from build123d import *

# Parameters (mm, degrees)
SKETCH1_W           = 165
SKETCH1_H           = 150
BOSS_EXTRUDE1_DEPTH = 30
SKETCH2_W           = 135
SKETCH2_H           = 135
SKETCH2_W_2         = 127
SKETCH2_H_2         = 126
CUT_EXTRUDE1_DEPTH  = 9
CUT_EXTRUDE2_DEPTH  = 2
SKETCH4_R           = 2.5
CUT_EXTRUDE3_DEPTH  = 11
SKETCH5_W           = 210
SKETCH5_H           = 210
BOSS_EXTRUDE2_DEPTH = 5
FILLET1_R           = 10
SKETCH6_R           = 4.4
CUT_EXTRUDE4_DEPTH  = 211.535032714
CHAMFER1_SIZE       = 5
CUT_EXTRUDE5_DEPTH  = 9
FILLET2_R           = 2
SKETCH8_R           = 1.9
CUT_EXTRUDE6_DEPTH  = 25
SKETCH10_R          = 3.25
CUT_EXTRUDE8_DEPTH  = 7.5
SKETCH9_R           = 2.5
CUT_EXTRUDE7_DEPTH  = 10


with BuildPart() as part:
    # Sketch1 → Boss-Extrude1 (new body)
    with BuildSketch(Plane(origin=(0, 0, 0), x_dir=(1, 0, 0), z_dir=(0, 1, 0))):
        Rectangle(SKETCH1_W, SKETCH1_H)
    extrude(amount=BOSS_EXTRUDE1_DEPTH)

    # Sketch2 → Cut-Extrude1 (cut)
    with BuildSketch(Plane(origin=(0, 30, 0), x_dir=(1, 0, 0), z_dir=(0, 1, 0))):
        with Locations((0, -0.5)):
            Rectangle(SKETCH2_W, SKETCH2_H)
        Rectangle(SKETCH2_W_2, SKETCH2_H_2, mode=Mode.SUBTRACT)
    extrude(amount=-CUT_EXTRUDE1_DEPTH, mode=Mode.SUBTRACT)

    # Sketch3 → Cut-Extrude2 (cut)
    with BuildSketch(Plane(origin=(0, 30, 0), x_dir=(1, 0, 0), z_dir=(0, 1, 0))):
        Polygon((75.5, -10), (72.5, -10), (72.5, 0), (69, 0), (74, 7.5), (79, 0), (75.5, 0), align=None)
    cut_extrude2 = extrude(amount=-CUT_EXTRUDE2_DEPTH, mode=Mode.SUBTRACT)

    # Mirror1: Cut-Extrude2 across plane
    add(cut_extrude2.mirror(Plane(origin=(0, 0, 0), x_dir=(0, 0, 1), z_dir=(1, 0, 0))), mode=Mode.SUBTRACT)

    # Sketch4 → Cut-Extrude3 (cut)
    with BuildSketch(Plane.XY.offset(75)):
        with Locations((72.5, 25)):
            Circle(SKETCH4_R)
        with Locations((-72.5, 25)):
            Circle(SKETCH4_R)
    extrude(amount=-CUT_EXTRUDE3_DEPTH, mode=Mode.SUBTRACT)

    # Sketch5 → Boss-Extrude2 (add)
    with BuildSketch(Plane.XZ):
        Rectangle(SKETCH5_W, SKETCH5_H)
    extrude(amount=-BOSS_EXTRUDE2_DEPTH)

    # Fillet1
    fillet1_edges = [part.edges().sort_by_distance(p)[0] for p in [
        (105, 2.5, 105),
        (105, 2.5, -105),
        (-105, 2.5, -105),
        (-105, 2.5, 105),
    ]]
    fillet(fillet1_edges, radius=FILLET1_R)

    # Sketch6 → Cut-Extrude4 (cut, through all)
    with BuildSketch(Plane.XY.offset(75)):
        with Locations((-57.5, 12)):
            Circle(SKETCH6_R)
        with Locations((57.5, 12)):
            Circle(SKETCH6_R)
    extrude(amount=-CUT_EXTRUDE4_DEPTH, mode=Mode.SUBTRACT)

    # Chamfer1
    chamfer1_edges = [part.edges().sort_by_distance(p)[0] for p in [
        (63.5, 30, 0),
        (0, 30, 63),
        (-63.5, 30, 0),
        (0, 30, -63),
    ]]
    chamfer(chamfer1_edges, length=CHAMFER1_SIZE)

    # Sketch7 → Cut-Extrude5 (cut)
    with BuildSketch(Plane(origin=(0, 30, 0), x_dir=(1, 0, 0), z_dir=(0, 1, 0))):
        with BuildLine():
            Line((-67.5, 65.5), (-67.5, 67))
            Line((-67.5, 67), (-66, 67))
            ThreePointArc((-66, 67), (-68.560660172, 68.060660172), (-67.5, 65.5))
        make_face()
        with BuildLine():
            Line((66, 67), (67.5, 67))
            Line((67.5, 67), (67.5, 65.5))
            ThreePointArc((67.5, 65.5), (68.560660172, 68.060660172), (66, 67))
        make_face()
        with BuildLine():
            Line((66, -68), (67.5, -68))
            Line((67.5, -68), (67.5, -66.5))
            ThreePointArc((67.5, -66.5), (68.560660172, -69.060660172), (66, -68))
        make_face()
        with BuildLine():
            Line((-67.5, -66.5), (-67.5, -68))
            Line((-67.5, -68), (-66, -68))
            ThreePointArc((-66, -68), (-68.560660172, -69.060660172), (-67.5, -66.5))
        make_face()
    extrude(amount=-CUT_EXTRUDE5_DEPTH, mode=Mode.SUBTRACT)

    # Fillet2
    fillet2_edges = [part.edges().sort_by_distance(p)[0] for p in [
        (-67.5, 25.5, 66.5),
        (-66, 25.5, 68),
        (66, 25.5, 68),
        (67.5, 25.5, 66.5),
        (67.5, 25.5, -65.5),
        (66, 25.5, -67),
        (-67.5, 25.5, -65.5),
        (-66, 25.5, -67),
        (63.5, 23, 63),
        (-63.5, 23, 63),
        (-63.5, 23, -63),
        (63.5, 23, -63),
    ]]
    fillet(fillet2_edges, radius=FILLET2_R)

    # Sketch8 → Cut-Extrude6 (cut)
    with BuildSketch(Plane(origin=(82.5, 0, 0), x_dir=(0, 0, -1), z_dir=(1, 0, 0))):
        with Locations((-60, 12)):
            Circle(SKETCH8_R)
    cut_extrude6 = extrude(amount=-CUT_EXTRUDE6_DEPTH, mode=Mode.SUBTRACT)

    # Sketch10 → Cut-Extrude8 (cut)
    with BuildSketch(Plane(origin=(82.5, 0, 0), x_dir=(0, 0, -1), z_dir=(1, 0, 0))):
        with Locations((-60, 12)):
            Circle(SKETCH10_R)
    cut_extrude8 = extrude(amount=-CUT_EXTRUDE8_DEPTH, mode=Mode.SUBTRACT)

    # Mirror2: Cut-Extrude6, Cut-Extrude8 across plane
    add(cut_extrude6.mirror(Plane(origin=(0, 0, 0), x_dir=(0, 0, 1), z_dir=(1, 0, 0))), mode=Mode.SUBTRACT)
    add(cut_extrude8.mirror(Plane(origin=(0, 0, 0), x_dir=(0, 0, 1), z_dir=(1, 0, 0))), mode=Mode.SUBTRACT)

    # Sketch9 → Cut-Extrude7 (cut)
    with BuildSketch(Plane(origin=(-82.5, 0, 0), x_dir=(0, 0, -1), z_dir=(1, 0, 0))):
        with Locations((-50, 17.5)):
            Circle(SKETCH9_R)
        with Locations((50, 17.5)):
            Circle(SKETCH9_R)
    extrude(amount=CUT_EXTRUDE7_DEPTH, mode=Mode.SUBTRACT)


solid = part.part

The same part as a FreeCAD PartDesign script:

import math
import FreeCAD as App
import Part
import Sketcher


def edges_at(feature, points):
    """Names of the edges that pass closest to the given points."""
    edges = feature.Shape.Edges
    near = lambda p: min(range(len(edges)), key=lambda i: edges[i].distToShape(Part.Vertex(*p))[0])
    return sorted({f"Edge{near(p) + 1}" for p in points})


def add_polygon(sketch, points):
    """Adds a closed chain of lines whose ends are joined by coincident constraints."""
    first, n = sketch.GeometryCount, len(points)
    for a, b in zip(points, points[1:] + points[:1]):
        sketch.addGeometry(Part.LineSegment(App.Vector(*a, 0), App.Vector(*b, 0)), False)
    for i in range(n):
        sketch.addConstraint(Sketcher.Constraint("Coincident", first + i, 2, first + (i + 1) % n, 1))

doc = App.newDocument("Part")
body = doc.addObject("PartDesign::Body", "Body")

sketch1 = doc.addObject("Sketcher::SketchObject", "Sketch")
body.addObject(sketch1)
sketch1.AttachmentSupport = (doc.XZ_Plane, [""])
sketch1.MapMode = "FlatFace"
add_polygon(sketch1, [(-82.5, -75), (-82.5, 75), (82.5, 75), (82.5, -75)])
sketch1.addConstraint([
    Sketcher.Constraint("Vertical", 0),
    Sketcher.Constraint("Horizontal", 1),
    Sketcher.Constraint("Vertical", 2),
    Sketcher.Constraint("Horizontal", 3),
    Sketcher.Constraint("Symmetric", 0, 2, 2, 2, -1, 1),
    Sketcher.Constraint("DistanceX", 1, 1, 1, 2, 165.0),
    Sketcher.Constraint("DistanceY", 0, 1, 0, 2, 150.0),
])
pad1 = doc.addObject("PartDesign::Pad", "Pad")
body.addObject(pad1)
pad1.Profile = sketch1
pad1.Length = 30
pad1.Reversed = True

sketch2 = doc.addObject("Sketcher::SketchObject", "Sketch001")
body.addObject(sketch2)
sketch2.AttachmentSupport = (doc.XZ_Plane, [""])
sketch2.MapMode = "FlatFace"
sketch2.AttachmentOffset = App.Placement(App.Vector(0, 0, -30), App.Rotation())
add_polygon(sketch2, [(-67.5, -67), (-67.5, 68), (67.5, 68), (67.5, -67)])
add_polygon(sketch2, [(63.5, 63), (-63.5, 63), (-63.5, -63), (63.5, -63)])
sketch2.addConstraint([
    Sketcher.Constraint("Vertical", 0),
    Sketcher.Constraint("Horizontal", 1),
    Sketcher.Constraint("Vertical", 2),
    Sketcher.Constraint("Horizontal", 3),
    Sketcher.Constraint("Horizontal", 4),
    Sketcher.Constraint("Vertical", 5),
    Sketcher.Constraint("Horizontal", 6),
    Sketcher.Constraint("Vertical", 7),
    Sketcher.Constraint("Symmetric", 4, 2, 6, 2, -1, 1),
    Sketcher.Constraint("Equal", 3, 0),
    Sketcher.Constraint("DistanceX", 1, 1, 1, 2, 135.0),
    Sketcher.Constraint("DistanceX", 4, 2, 4, 1, 127.0),
    Sketcher.Constraint("DistanceY", 5, 2, 5, 1, 126.0),
    Sketcher.Constraint("DistanceY", -1, 1, 0, 2, 68.0),
    Sketcher.Constraint("DistanceX", 0, 2, 4, 2, 4.0),
])
pocket1 = doc.addObject("PartDesign::Pocket", "Pocket")
body.addObject(pocket1)
pocket1.Profile = sketch2
pocket1.Length = 9
pocket1.Reversed = True

sketch3 = doc.addObject("Sketcher::SketchObject", "Sketch002")
body.addObject(sketch3)
sketch3.AttachmentSupport = (doc.XZ_Plane, [""])
sketch3.MapMode = "FlatFace"
sketch3.AttachmentOffset = App.Placement(App.Vector(0, 0, -30), App.Rotation())
add_polygon(sketch3, [(72.5, 10), (75.5, 10), (75.5, 0), (79, 0), (74, -7.5), (69, 0), (72.5, 0)])
sketch3.addConstraint([
    Sketcher.Constraint("Horizontal", 0),
    Sketcher.Constraint("Vertical", 1),
    Sketcher.Constraint("Horizontal", 2),
    Sketcher.Constraint("Horizontal", 5),
    Sketcher.Constraint("Vertical", 6),
    Sketcher.Constraint("PointOnObject", 1, 2, -1),
    Sketcher.Constraint("PointOnObject", 4, 2, -1),
    Sketcher.Constraint("Equal", 2, 5),
    Sketcher.Constraint("Equal", 3, 4),
    Sketcher.Constraint("DistanceX", 0, 1, 0, 2, 3.0),
    Sketcher.Constraint("DistanceY", 1, 2, 1, 1, 10.0),
    Sketcher.Constraint("DistanceX", 2, 1, 2, 2, 3.5),
    Sketcher.Constraint("DistanceX", -1, 1, 2, 2, 79.0),
    Sketcher.Constraint("DistanceY", 3, 2, -1, 1, 7.5),
])
pocket2 = doc.addObject("PartDesign::Pocket", "Pocket001")
body.addObject(pocket2)
pocket2.Profile = sketch3
pocket2.Length = 2
pocket2.Reversed = True
doc.recompute()

mirrored = doc.addObject("PartDesign::Mirrored", "Mirrored")
body.addObject(mirrored)
mirrored.Originals = [pocket2]
mirrored.MirrorPlane = (doc.YZ_Plane, [""])
body.Tip = mirrored

sketch4 = doc.addObject("Sketcher::SketchObject", "Sketch003")
body.addObject(sketch4)
sketch4.AttachmentSupport = (doc.XY_Plane, [""])
sketch4.MapMode = "FlatFace"
sketch4.AttachmentOffset = App.Placement(App.Vector(0, 0, 75), App.Rotation())
sketch4.addGeometry([
    Part.Circle(App.Vector(72.5, 25, 0), App.Vector(0, 0, 1), 2.5),
    Part.Circle(App.Vector(-72.5, 25, 0), App.Vector(0, 0, 1), 2.5),
], False)
sketch4.addConstraint([
    Sketcher.Constraint("Equal", 0, 1),
    Sketcher.Constraint("Symmetric", 0, 3, 1, 3, -2),
    Sketcher.Constraint("Diameter", 0, 5.0),
    Sketcher.Constraint("DistanceY", -1, 1, 0, 3, 25.0),
    Sketcher.Constraint("DistanceX", 1, 3, 0, 3, 145.0),
])
pocket3 = doc.addObject("PartDesign::Pocket", "Pocket002")
body.addObject(pocket3)
pocket3.Profile = sketch4
pocket3.Length = 11

sketch5 = doc.addObject("Sketcher::SketchObject", "Sketch004")
body.addObject(sketch5)
sketch5.AttachmentSupport = (doc.XZ_Plane, [""])
sketch5.MapMode = "FlatFace"
add_polygon(sketch5, [(-105, 105), (-105, -105), (105, -105), (105, 105)])
sketch5.addConstraint([
    Sketcher.Constraint("Vertical", 0),
    Sketcher.Constraint("Horizontal", 1),
    Sketcher.Constraint("Vertical", 2),
    Sketcher.Constraint("Horizontal", 3),
    Sketcher.Constraint("Symmetric", 0, 2, 2, 2, -1, 1),
    Sketcher.Constraint("Equal", 3, 0),
    Sketcher.Constraint("DistanceX", 1, 1, 1, 2, 210.0),
])
pad2 = doc.addObject("PartDesign::Pad", "Pad001")
body.addObject(pad2)
pad2.Profile = sketch5
pad2.Length = 5
pad2.Reversed = True
doc.recompute()

fillet = doc.addObject("PartDesign::Fillet", "Fillet")
body.addObject(fillet)
fillet.Base = (pad2, edges_at(pad2, [
    (105, 2.5, 105),
    (105, 2.5, -105),
    (-105, 2.5, -105),
    (-105, 2.5, 105),
]))
fillet.Radius = 10

sketch6 = doc.addObject("Sketcher::SketchObject", "Sketch005")
body.addObject(sketch6)
sketch6.AttachmentSupport = (doc.XY_Plane, [""])
sketch6.MapMode = "FlatFace"
sketch6.AttachmentOffset = App.Placement(App.Vector(0, 0, 75), App.Rotation())
sketch6.addGeometry([
    Part.Circle(App.Vector(-57.5, 12, 0), App.Vector(0, 0, 1), 4.4),
    Part.Circle(App.Vector(57.5, 12, 0), App.Vector(0, 0, 1), 4.4),
], False)
sketch6.addConstraint([
    Sketcher.Constraint("Equal", 0, 1),
    Sketcher.Constraint("Symmetric", 0, 3, 1, 3, -2),
    Sketcher.Constraint("Diameter", 0, 8.8),
    Sketcher.Constraint("DistanceY", -1, 1, 0, 3, 12.0),
    Sketcher.Constraint("DistanceX", 0, 3, 1, 3, 115.0),
])
pocket4 = doc.addObject("PartDesign::Pocket", "Pocket003")
body.addObject(pocket4)
pocket4.Profile = sketch6
pocket4.Type = "ThroughAll"
doc.recompute()

chamfer = doc.addObject("PartDesign::Chamfer", "Chamfer")
body.addObject(chamfer)
chamfer.Base = (pocket4, edges_at(pocket4, [
    (63.5, 30, 0),
    (0, 30, 63),
    (-63.5, 30, 0),
    (0, 30, -63),
]))
chamfer.Size = 5

sketch7 = doc.addObject("Sketcher::SketchObject", "Sketch006")
body.addObject(sketch7)
sketch7.AttachmentSupport = (doc.XZ_Plane, [""])
sketch7.MapMode = "FlatFace"
sketch7.AttachmentOffset = App.Placement(App.Vector(0, 0, -30), App.Rotation())
sketch7.addGeometry([
    Part.LineSegment(App.Vector(-67.5, -65.5, 0), App.Vector(-67.5, -67, 0)),
    Part.LineSegment(App.Vector(-67.5, -67, 0), App.Vector(-66, -67, 0)),
    Part.ArcOfCircle(Part.Circle(App.Vector(-67.5, -67, 0), App.Vector(0, 0, 1), 1.5), math.radians(90), math.radians(360)),
    Part.LineSegment(App.Vector(66, -67, 0), App.Vector(67.5, -67, 0)),
    Part.LineSegment(App.Vector(67.5, -67, 0), App.Vector(67.5, -65.5, 0)),
    Part.ArcOfCircle(Part.Circle(App.Vector(67.5, -67, 0), App.Vector(0, 0, 1), 1.5), math.radians(180), math.radians(450)),
    Part.LineSegment(App.Vector(67.5, 68, 0), App.Vector(66, 68, 0)),
    Part.ArcOfCircle(Part.Circle(App.Vector(67.5, 68, 0), App.Vector(0, 0, 1), 1.5), math.radians(-90), math.radians(180)),
    Part.LineSegment(App.Vector(67.5, 66.5, 0), App.Vector(67.5, 68, 0)),
    Part.LineSegment(App.Vector(-67.5, 68, 0), App.Vector(-67.5, 66.5, 0)),
    Part.ArcOfCircle(Part.Circle(App.Vector(-67.5, 68, 0), App.Vector(0, 0, 1), 1.5), math.radians(0), math.radians(270)),
    Part.LineSegment(App.Vector(-66, 68, 0), App.Vector(-67.5, 68, 0)),
], False)
sketch7.addConstraint([
    Sketcher.Constraint("Coincident", 0, 2, 1, 1),
    Sketcher.Constraint("Coincident", 1, 2, 2, 2),
    Sketcher.Constraint("Coincident", 2, 1, 0, 1),
    Sketcher.Constraint("Coincident", 3, 2, 4, 1),
    Sketcher.Constraint("Coincident", 4, 2, 5, 2),
    Sketcher.Constraint("Coincident", 5, 1, 3, 1),
    Sketcher.Constraint("Coincident", 6, 2, 7, 2),
    Sketcher.Constraint("Coincident", 7, 1, 8, 1),
    Sketcher.Constraint("Coincident", 8, 2, 6, 1),
    Sketcher.Constraint("Coincident", 9, 2, 10, 2),
    Sketcher.Constraint("Coincident", 10, 1, 11, 1),
    Sketcher.Constraint("Coincident", 11, 2, 9, 1),
    Sketcher.Constraint("Vertical", 0),
    Sketcher.Constraint("Horizontal", 1),
    Sketcher.Constraint("Horizontal", 3),
    Sketcher.Constraint("Vertical", 4),
    Sketcher.Constraint("Horizontal", 6),
    Sketcher.Constraint("Vertical", 8),
    Sketcher.Constraint("Vertical", 9),
    Sketcher.Constraint("Horizontal", 11),
    Sketcher.Constraint("Coincident", 0, 2, 2, 3),
    Sketcher.Constraint("Coincident", 3, 2, 5, 3),
    Sketcher.Constraint("Coincident", 8, 2, 7, 3),
    Sketcher.Constraint("Coincident", 11, 2, 10, 3),
    Sketcher.Constraint("Equal", 2, 5),
    Sketcher.Constraint("Equal", 5, 7),
    Sketcher.Constraint("Equal", 7, 10),
    Sketcher.Constraint("Symmetric", 2, 3, 5, 3, -2),
    Sketcher.Constraint("Symmetric", 7, 3, 10, 3, -2),
    Sketcher.Constraint("Vertical", 5, 3, 7, 3),
    Sketcher.Constraint("Radius", 2, 1.5),
    Sketcher.Constraint("DistanceY", 2, 3, -1, 1, 67.0),
    Sketcher.Constraint("DistanceY", -1, 1, 7, 3, 68.0),
    Sketcher.Constraint("DistanceX", 1, 2, -1, 1, 66.0),
])
pocket5 = doc.addObject("PartDesign::Pocket", "Pocket004")
body.addObject(pocket5)
pocket5.Profile = sketch7
pocket5.Length = 9
pocket5.Reversed = True
doc.recompute()

fillet2 = doc.addObject("PartDesign::Fillet", "Fillet001")
body.addObject(fillet2)
fillet2.Base = (pocket5, edges_at(pocket5, [
    (-67.5, 25.5, 66.5),
    (-66, 25.5, 68),
    (66, 25.5, 68),
    (67.5, 25.5, 66.5),
    (67.5, 25.5, -65.5),
    (66, 25.5, -67),
    (-67.5, 25.5, -65.5),
    (-66, 25.5, -67),
    (63.5, 23, 63),
    (-63.5, 23, 63),
    (-63.5, 23, -63),
    (63.5, 23, -63),
]))
fillet2.Radius = 2

sketch8 = doc.addObject("Sketcher::SketchObject", "Sketch007")
body.addObject(sketch8)
sketch8.AttachmentSupport = (doc.YZ_Plane, [""])
sketch8.MapMode = "FlatFace"
sketch8.AttachmentOffset = App.Placement(App.Vector(0, 0, 82.5), App.Rotation())
sketch8.addGeometry(Part.Circle(App.Vector(12, 60, 0), App.Vector(0, 0, 1), 1.9), False)
sketch8.addConstraint([
    Sketcher.Constraint("Diameter", 0, 3.8),
    Sketcher.Constraint("DistanceX", -1, 1, 0, 3, 12.0),
    Sketcher.Constraint("DistanceY", -1, 1, 0, 3, 60.0),
])
pocket6 = doc.addObject("PartDesign::Pocket", "Pocket005")
body.addObject(pocket6)
pocket6.Profile = sketch8
pocket6.Length = 25

sketch9 = doc.addObject("Sketcher::SketchObject", "Sketch008")
body.addObject(sketch9)
sketch9.AttachmentSupport = (doc.YZ_Plane, [""])
sketch9.MapMode = "FlatFace"
sketch9.AttachmentOffset = App.Placement(App.Vector(0, 0, 82.5), App.Rotation())
sketch9.addGeometry(Part.Circle(App.Vector(12, 60, 0), App.Vector(0, 0, 1), 3.25), False)
sketch9.addConstraint([
    Sketcher.Constraint("Diameter", 0, 6.5),
    Sketcher.Constraint("DistanceX", -1, 1, 0, 3, 12.0),
    Sketcher.Constraint("DistanceY", -1, 1, 0, 3, 60.0),
])
pocket7 = doc.addObject("PartDesign::Pocket", "Pocket006")
body.addObject(pocket7)
pocket7.Profile = sketch9
pocket7.Length = 7.5
doc.recompute()

mirrored2 = doc.addObject("PartDesign::Mirrored", "Mirrored001")
body.addObject(mirrored2)
mirrored2.Originals = [pocket6, pocket7]
mirrored2.MirrorPlane = (doc.YZ_Plane, [""])
body.Tip = mirrored2

sketch10 = doc.addObject("Sketcher::SketchObject", "Sketch009")
body.addObject(sketch10)
sketch10.AttachmentSupport = (doc.YZ_Plane, [""])
sketch10.MapMode = "FlatFace"
sketch10.AttachmentOffset = App.Placement(App.Vector(0, 0, -82.5), App.Rotation())
sketch10.addGeometry([
    Part.Circle(App.Vector(17.5, 50, 0), App.Vector(0, 0, 1), 2.5),
    Part.Circle(App.Vector(17.5, -50, 0), App.Vector(0, 0, 1), 2.5),
], False)
sketch10.addConstraint([
    Sketcher.Constraint("Equal", 0, 1),
    Sketcher.Constraint("Symmetric", 0, 3, 1, 3, -1),
    Sketcher.Constraint("Diameter", 0, 5.0),
    Sketcher.Constraint("DistanceY", -1, 1, 0, 3, 50.0),
    Sketcher.Constraint("DistanceX", -1, 1, 0, 3, 17.5),
])
pocket8 = doc.addObject("PartDesign::Pocket", "Pocket007")
body.addObject(pocket8)
pocket8.Profile = sketch10
pocket8.Length = 10
pocket8.Reversed = True

doc.recompute()
